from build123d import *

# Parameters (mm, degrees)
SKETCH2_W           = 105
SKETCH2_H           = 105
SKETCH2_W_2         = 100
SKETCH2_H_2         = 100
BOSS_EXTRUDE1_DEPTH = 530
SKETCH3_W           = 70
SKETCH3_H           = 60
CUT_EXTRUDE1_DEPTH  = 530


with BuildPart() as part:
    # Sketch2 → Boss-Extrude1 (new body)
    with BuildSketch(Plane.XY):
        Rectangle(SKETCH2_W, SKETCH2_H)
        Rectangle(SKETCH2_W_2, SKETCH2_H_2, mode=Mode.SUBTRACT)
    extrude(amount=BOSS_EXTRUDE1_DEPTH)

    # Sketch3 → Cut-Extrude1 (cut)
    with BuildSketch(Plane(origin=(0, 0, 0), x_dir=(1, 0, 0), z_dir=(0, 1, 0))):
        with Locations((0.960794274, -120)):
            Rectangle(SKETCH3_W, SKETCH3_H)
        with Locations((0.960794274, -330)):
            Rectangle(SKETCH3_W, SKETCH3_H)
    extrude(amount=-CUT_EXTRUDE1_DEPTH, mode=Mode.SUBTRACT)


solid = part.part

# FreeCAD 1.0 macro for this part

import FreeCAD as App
import Part
import Sketcher

V = App.Vector


def add_polygon(sketch, points):
    """Adds a closed chain of lines whose ends are joined by coincident constraints."""
    first, n = sketch.GeometryCount, len(points)
    for a, b in zip(points, points[1:] + points[:1]):
        sketch.addGeometry(Part.LineSegment(App.Vector(*a, 0), App.Vector(*b, 0)), False)
    for i in range(n):
        sketch.addConstraint(Sketcher.Constraint("Coincident", first + i, 2, first + (i + 1) % n, 1))

doc = App.newDocument("Part")
body = doc.addObject("PartDesign::Body", "Body")

# Sketch on XY plane
sketch1 = body.newObject("Sketcher::SketchObject", "Sketch")
sketch1.AttachmentSupport = (doc.getObject("XY_Plane"), [""])
sketch1.MapMode = "FlatFace"
add_polygon(sketch1, [(-52, 52), (-52, -52), (52, -52), (52, 52)])  # lines 0-3
add_polygon(sketch1, [(50, -50), (-50, -50), (-50, 50), (50, 50)])  # lines 4-7
sketch1.addConstraint([
    Sketcher.Constraint("Vertical", 0),
    Sketcher.Constraint("Horizontal", 1),
    Sketcher.Constraint("Vertical", 2),
    Sketcher.Constraint("Horizontal", 3),
    Sketcher.Constraint("Horizontal", 4),
    Sketcher.Constraint("Vertical", 5),
    Sketcher.Constraint("Horizontal", 6),
    Sketcher.Constraint("Vertical", 7),
    Sketcher.Constraint("Symmetric", 0, 2, 2, 2, -1, 1),
    Sketcher.Constraint("Symmetric", 4, 2, 6, 2, -1, 1),
    Sketcher.Constraint("Equal", 3, 0),
    Sketcher.Constraint("Equal", 6, 5),
    Sketcher.Constraint("DistanceX", 1, 1, 1, 2, 105.0),
    Sketcher.Constraint("DistanceX", 4, 2, 4, 1, 100.0),
])
pad1 = body.newObject("PartDesign::Pad", "Pad")
pad1.Profile = sketch1
pad1.Length = 530

# Sketch on XZ plane
sketch2 = body.newObject("Sketcher::SketchObject", "Sketch001")
sketch2.AttachmentSupport = (doc.getObject("XZ_Plane"), [""])
sketch2.MapMode = "FlatFace"
add_polygon(sketch2, [(-34, 90), (-34, 150), (36, 150), (36, 90)])  # lines 0-3
add_polygon(sketch2, [(-34, 300), (-34, 360), (36, 360), (36, 300)])  # lines 4-7
sketch2.addConstraint([
    Sketcher.Constraint("Vertical", 0),
    Sketcher.Constraint("Horizontal", 1),
    Sketcher.Constraint("Vertical", 2),
    Sketcher.Constraint("Horizontal", 3),
    Sketcher.Constraint("Vertical", 4),
    Sketcher.Constraint("Horizontal", 5),
    Sketcher.Constraint("Vertical", 6),
    Sketcher.Constraint("Horizontal", 7),
    Sketcher.Constraint("Vertical", 3, 2, 4, 2),
    Sketcher.Constraint("Vertical", 2, 2, 5, 2),
    Sketcher.Constraint("Equal", 2, 4),
    Sketcher.Constraint("DistanceX", 1, 1, 1, 2, 70.0),
    Sketcher.Constraint("DistanceY", 0, 1, 0, 2, 60.0),
    Sketcher.Constraint("DistanceY", -1, 1, 0, 2, 150.0),
    Sketcher.Constraint("DistanceY", -1, 1, 4, 2, 360.0),
    Sketcher.Constraint("DistanceX", 0, 2, -1, 1, 34.039206),
])
pocket1 = body.newObject("PartDesign::Pocket", "Pocket")
pocket1.Profile = sketch2
pocket1.Length = 530
pocket1.Reversed = True

doc.recompute()
